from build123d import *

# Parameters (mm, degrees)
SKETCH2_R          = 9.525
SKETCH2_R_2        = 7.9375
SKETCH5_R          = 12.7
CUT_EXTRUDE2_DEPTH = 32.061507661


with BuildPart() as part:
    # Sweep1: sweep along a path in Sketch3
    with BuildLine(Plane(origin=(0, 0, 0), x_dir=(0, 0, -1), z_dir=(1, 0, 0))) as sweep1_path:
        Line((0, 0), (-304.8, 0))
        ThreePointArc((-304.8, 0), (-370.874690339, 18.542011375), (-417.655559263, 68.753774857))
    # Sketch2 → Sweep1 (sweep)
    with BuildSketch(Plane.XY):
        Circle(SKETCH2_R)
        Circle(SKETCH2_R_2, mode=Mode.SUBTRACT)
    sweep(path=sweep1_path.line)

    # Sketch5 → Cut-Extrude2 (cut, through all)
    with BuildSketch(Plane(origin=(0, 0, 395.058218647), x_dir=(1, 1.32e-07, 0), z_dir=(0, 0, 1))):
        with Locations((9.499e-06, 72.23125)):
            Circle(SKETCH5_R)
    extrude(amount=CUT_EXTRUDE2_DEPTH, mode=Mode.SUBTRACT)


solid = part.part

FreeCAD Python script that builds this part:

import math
import FreeCAD as App
import Part
import Sketcher
Q = App.Units.Quantity

doc = App.newDocument("Part")
body = doc.addObject("PartDesign::Body", "Body")

# Sketch on XY plane
sketch1 = doc.addObject("Sketcher::SketchObject", "Sketch")
body.addObject(sketch1)
sketch1.AttachmentSupport = (doc.XY_Plane, [""])
sketch1.MapMode = "FlatFace"
sketch1.addGeometry(Part.Circle(App.Vector(0, 0, 0), App.Vector(0, 0, 1), 10), False)
sketch1.addGeometry(Part.Circle(App.Vector(0, 0, 0), App.Vector(0, 0, 1), 8), False)
sketch1.addConstraint(Sketcher.Constraint("Coincident", 0, 3, -1, 1))
sketch1.addConstraint(Sketcher.Constraint("Coincident", 1, 3, -1, 1))
sketch1.addConstraint(Sketcher.Constraint("Diameter", 0, Q("0.75 in")))
sketch1.addConstraint(Sketcher.Constraint("Diameter", 1, Q("0.625 in")))

# Sketch on YZ plane
sketch2 = doc.addObject("Sketcher::SketchObject", "Sketch001")
body.addObject(sketch2)
sketch2.AttachmentSupport = (doc.YZ_Plane, [""])
sketch2.MapMode = "FlatFace"
sketch2.addGeometry(Part.LineSegment(App.Vector(0, 0, 0), App.Vector(0, 305, 0)), False)
sketch2.addGeometry(Part.ArcOfCircle(Part.Circle(App.Vector(127, 305, 0), App.Vector(0, 0, 1), 127), math.radians(117), math.radians(180)), False)
sketch2.addConstraint(Sketcher.Constraint("Tangent", 0, 2, 1, 2))
sketch2.addConstraint(Sketcher.Constraint("Vertical", 0))
sketch2.addConstraint(Sketcher.Constraint("Coincident", 0, 1, -1, 1))
sketch2.addConstraint(Sketcher.Constraint("Radius", 1, Q("5 in")))
sketch2.addConstraint(Sketcher.Constraint("DistanceY", 0, 1, 0, 2, Q("12 in")))
sketch2.addConstraint(Sketcher.Constraint("DistanceY", -1, 1, 1, 1, Q("417.655559 mm")))
doc.recompute()

additivepipe = doc.addObject("PartDesign::AdditivePipe", "AdditivePipe")
body.addObject(additivepipe)
additivepipe.Profile = sketch1
additivepipe.Spine = (sketch2, ["Edge1", "Edge2"])

# Sketch on XY plane
sketch3 = doc.addObject("Sketcher::SketchObject", "Sketch002")
body.addObject(sketch3)
sketch3.AttachmentSupport = (doc.XY_Plane, [""])
sketch3.MapMode = "FlatFace"
sketch3.AttachmentOffset = App.Placement(App.Vector(0, 0, 395.058219), App.Rotation())
sketch3.addGeometry(Part.Circle(App.Vector(0, 72, 0), App.Vector(0, 0, 1), 13), False)
sketch3.addConstraint(Sketcher.Constraint("PointOnObject", 0, 3, -2))
sketch3.addConstraint(Sketcher.Constraint("Diameter", 0, Q("1 in")))
sketch3.addConstraint(Sketcher.Constraint("DistanceY", -1, 1, 0, 3, Q("2.84375 in")))
pocket1 = doc.addObject("PartDesign::Pocket", "Pocket")
body.addObject(pocket1)
pocket1.Profile = sketch3
pocket1.Type = "ThroughAll"
pocket1.Reversed = True

doc.recompute()
